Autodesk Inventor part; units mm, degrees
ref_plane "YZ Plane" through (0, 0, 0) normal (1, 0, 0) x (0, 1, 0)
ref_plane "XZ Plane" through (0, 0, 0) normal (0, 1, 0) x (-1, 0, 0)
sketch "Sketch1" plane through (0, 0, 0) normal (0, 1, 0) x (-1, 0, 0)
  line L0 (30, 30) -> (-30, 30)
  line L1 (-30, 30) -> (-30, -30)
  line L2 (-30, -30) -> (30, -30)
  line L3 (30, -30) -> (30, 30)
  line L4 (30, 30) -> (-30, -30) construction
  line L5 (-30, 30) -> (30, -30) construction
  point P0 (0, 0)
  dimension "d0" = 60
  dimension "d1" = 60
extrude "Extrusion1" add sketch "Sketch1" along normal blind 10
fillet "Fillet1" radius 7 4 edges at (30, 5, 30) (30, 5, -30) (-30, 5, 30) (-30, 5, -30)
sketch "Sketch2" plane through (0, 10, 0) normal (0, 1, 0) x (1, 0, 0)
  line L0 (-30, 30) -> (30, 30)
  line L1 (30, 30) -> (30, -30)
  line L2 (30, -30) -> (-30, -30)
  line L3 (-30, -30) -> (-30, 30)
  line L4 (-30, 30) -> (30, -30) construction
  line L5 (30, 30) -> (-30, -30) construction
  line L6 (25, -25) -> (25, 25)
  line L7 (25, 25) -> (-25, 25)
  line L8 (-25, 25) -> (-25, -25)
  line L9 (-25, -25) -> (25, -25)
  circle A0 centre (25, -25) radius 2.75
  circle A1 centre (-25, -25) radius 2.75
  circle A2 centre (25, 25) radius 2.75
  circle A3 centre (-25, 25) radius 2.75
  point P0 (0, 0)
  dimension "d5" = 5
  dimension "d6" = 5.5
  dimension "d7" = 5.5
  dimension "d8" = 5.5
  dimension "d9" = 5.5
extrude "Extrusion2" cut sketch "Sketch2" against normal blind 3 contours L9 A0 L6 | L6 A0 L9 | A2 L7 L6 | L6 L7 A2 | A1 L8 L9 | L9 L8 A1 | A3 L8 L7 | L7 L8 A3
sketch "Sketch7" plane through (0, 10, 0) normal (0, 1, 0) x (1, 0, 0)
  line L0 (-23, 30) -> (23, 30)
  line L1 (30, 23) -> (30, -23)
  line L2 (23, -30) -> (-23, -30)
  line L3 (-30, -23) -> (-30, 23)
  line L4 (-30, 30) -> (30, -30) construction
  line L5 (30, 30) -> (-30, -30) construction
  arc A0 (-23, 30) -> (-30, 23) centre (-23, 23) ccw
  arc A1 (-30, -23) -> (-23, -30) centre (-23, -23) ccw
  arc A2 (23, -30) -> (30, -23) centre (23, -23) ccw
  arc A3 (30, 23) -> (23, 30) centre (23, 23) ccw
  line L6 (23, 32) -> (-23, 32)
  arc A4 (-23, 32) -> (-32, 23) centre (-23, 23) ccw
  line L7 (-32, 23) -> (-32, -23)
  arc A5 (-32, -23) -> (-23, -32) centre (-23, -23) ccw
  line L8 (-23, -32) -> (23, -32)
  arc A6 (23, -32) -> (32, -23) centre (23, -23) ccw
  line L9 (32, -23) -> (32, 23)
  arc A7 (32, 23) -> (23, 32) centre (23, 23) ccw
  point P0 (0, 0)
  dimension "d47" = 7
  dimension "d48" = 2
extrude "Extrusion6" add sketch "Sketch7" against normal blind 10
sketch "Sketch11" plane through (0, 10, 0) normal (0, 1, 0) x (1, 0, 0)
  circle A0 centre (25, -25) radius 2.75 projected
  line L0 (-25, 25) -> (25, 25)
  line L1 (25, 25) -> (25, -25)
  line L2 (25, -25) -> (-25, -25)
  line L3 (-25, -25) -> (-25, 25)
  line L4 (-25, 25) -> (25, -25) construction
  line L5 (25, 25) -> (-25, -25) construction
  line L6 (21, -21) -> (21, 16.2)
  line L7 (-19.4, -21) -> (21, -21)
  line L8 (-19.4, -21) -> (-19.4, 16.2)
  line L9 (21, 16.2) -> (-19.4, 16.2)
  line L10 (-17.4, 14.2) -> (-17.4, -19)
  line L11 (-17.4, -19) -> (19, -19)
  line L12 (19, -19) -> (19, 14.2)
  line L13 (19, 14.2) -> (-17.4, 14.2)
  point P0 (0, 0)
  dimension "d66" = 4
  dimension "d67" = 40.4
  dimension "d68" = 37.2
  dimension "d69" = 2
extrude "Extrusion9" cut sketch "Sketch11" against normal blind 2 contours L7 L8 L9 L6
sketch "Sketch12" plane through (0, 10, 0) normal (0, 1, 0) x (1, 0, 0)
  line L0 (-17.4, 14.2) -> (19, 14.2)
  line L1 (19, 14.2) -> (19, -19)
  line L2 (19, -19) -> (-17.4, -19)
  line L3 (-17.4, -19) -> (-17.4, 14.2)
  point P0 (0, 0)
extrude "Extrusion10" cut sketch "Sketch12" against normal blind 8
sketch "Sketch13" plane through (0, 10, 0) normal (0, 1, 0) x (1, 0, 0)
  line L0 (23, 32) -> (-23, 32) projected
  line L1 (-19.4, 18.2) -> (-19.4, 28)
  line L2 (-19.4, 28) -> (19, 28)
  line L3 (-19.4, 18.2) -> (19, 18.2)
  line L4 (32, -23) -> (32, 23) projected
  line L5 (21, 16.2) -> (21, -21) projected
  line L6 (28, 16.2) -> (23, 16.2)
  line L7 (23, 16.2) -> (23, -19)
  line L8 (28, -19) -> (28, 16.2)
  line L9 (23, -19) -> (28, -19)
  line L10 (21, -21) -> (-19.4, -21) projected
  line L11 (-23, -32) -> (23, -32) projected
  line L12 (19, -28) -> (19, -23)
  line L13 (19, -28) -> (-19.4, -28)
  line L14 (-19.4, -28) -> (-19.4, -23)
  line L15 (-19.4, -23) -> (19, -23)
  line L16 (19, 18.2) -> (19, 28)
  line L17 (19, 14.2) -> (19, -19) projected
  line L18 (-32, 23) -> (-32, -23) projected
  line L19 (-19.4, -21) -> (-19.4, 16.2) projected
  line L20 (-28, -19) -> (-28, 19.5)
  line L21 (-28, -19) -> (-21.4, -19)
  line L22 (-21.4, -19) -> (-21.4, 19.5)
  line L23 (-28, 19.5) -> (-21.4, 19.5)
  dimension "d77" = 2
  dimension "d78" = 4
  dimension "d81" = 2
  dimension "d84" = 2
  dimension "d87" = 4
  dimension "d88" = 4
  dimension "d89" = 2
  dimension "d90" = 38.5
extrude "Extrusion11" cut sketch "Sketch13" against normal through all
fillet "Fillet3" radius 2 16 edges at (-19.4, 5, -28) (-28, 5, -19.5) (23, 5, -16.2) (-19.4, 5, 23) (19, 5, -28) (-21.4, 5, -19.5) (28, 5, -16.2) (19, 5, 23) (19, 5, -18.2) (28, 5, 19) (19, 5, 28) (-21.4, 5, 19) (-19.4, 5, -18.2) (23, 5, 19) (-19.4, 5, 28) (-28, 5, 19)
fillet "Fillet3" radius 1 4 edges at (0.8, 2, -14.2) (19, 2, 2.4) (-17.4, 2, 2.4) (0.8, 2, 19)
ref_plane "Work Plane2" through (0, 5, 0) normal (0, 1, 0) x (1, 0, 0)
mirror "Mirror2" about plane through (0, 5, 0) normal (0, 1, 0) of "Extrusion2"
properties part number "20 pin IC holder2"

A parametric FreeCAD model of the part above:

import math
import FreeCAD as App
import Part
import Sketcher
Q = App.Units.Quantity


def edges_at(feature, points):
    """Names of the edges that pass closest to the given points."""
    edges = feature.Shape.Edges
    near = lambda p: min(range(len(edges)), key=lambda i: edges[i].distToShape(Part.Vertex(*p))[0])
    return sorted({f"Edge{near(p) + 1}" for p in points})


def add_polygon(sketch, points):
    """Adds a closed chain of lines whose ends are joined by coincident constraints."""
    first, n = sketch.GeometryCount, len(points)
    for a, b in zip(points, points[1:] + points[:1]):
        sketch.addGeometry(Part.LineSegment(App.Vector(*a, 0), App.Vector(*b, 0)), False)
    for i in range(n):
        sketch.addConstraint(Sketcher.Constraint("Coincident", first + i, 2, first + (i + 1) % n, 1))

doc = App.newDocument("Part")
body = doc.addObject("PartDesign::Body", "Body")

# Sketch on XZ plane
sketch1 = doc.addObject("Sketcher::SketchObject", "Sketch")
body.addObject(sketch1)
sketch1.AttachmentSupport = (doc.XZ_Plane, [""])
sketch1.MapMode = "FlatFace"
add_polygon(sketch1, [(-30, -30), (-30, 30), (30, 30), (30, -30)])  # lines 0-3
sketch1.addConstraint(Sketcher.Constraint("Vertical", 0))
sketch1.addConstraint(Sketcher.Constraint("Horizontal", 1))
sketch1.addConstraint(Sketcher.Constraint("Vertical", 2))
sketch1.addConstraint(Sketcher.Constraint("Horizontal", 3))
sketch1.addConstraint(Sketcher.Constraint("Symmetric", 0, 2, 2, 2, -1, 1))
sketch1.addConstraint(Sketcher.Constraint("Equal", 3, 0))
sketch1.addConstraint(Sketcher.Constraint("DistanceX", 1, 1, 1, 2, Q("60 mm")))
pad1 = doc.addObject("PartDesign::Pad", "Pad")
body.addObject(pad1)
pad1.Profile = sketch1
pad1.Length = 10
pad1.Reversed = True
doc.recompute()

fillet = doc.addObject("PartDesign::Fillet", "Fillet")
body.addObject(fillet)
fillet.Base = (pad1, edges_at(pad1, [
    (30, 5, 30),
    (30, 5, -30),
    (-30, 5, 30),
    (-30, 5, -30),
]))
fillet.Radius = 7

# Sketch on XZ plane
sketch2 = doc.addObject("Sketcher::SketchObject", "Sketch001")
body.addObject(sketch2)
sketch2.AttachmentSupport = (doc.XZ_Plane, [""])
sketch2.MapMode = "FlatFace"
sketch2.AttachmentOffset = App.Placement(App.Vector(0, 0, -10), App.Rotation())
sketch2.addGeometry(Part.Circle(App.Vector(25, 25, 0), App.Vector(0, 0, 1), 2.8), False)
sketch2.addGeometry(Part.Circle(App.Vector(25, -25, 0), App.Vector(0, 0, 1), 2.8), False)
sketch2.addGeometry(Part.Circle(App.Vector(-25, 25, 0), App.Vector(0, 0, 1), 2.8), False)
sketch2.addGeometry(Part.Circle(App.Vector(-25, -25, 0), App.Vector(0, 0, 1), 2.8), False)
sketch2.addConstraint(Sketcher.Constraint("Equal", 0, 1))
sketch2.addConstraint(Sketcher.Constraint("Equal", 1, 2))
sketch2.addConstraint(Sketcher.Constraint("Equal", 2, 3))
sketch2.addConstraint(Sketcher.Constraint("Symmetric", 1, 3, 2, 3, -1, 1))
sketch2.addConstraint(Sketcher.Constraint("Symmetric", 0, 3, 3, 3, -1, 1))
sketch2.addConstraint(Sketcher.Constraint("Symmetric", 0, 3, 2, 3, -2))
sketch2.addConstraint(Sketcher.Constraint("Diameter", 0, Q("5.5 mm")))
sketch2.addConstraint(Sketcher.Constraint("DistanceX", -1, 1, 0, 3, Q("25 mm")))
sketch2.addConstraint(Sketcher.Constraint("DistanceY", -1, 1, 0, 3, Q("25 mm")))
pocket1 = doc.addObject("PartDesign::Pocket", "Pocket")
body.addObject(pocket1)
pocket1.Profile = sketch2
pocket1.Length = 3
pocket1.Reversed = True

# Sketch on XZ plane
sketch3 = doc.addObject("Sketcher::SketchObject", "Sketch002")
body.addObject(sketch3)
sketch3.AttachmentSupport = (doc.XZ_Plane, [""])
sketch3.MapMode = "FlatFace"
sketch3.AttachmentOffset = App.Placement(App.Vector(0, 0, -10), App.Rotation())
sketch3.addGeometry(Part.ArcOfCircle(Part.Circle(App.Vector(23, -23, 0), App.Vector(0, 0, 1), 9), math.radians(-90), math.radians(0)), False)
sketch3.addGeometry(Part.LineSegment(App.Vector(23, -32, 0), App.Vector(-23, -32, 0)), False)
sketch3.addGeometry(Part.ArcOfCircle(Part.Circle(App.Vector(-23, -23, 0), App.Vector(0, 0, 1), 9), math.radians(180), math.radians(270)), False)
sketch3.addGeometry(Part.LineSegment(App.Vector(-32, -23, 0), App.Vector(-32, 23, 0)), False)
sketch3.addGeometry(Part.ArcOfCircle(Part.Circle(App.Vector(-23, 23, 0), App.Vector(0, 0, 1), 9), math.radians(90), math.radians(180)), False)
sketch3.addGeometry(Part.LineSegment(App.Vector(-23, 32, 0), App.Vector(23, 32, 0)), False)
sketch3.addGeometry(Part.ArcOfCircle(Part.Circle(App.Vector(23, 23, 0), App.Vector(0, 0, 1), 9), math.radians(0), math.radians(90)), False)
sketch3.addGeometry(Part.LineSegment(App.Vector(32, 23, 0), App.Vector(32, -23, 0)), False)
sketch3.addGeometry(Part.ArcOfCircle(Part.Circle(App.Vector(-23, -23, 0), App.Vector(0, 0, 1), 7), math.radians(180), math.radians(270)), False)
sketch3.addGeometry(Part.LineSegment(App.Vector(-23, -30, 0), App.Vector(23, -30, 0)), False)
sketch3.addGeometry(Part.ArcOfCircle(Part.Circle(App.Vector(23, -23, 0), App.Vector(0, 0, 1), 7), math.radians(-90), math.radians(0)), False)
sketch3.addGeometry(Part.LineSegment(App.Vector(30, -23, 0), App.Vector(30, 23, 0)), False)
sketch3.addGeometry(Part.ArcOfCircle(Part.Circle(App.Vector(23, 23, 0), App.Vector(0, 0, 1), 7), math.radians(0), math.radians(90)), False)
sketch3.addGeometry(Part.LineSegment(App.Vector(23, 30, 0), App.Vector(-23, 30, 0)), False)
sketch3.addGeometry(Part.ArcOfCircle(Part.Circle(App.Vector(-23, 23, 0), App.Vector(0, 0, 1), 7), math.radians(90), math.radians(180)), False)
sketch3.addGeometry(Part.LineSegment(App.Vector(-30, 23, 0), App.Vector(-30, -23, 0)), False)
sketch3.addConstraint(Sketcher.Constraint("Tangent", 0, 1, 1, 1))
sketch3.addConstraint(Sketcher.Constraint("Tangent", 1, 2, 2, 2))
sketch3.addConstraint(Sketcher.Constraint("Tangent", 2, 1, 3, 1))
sketch3.addConstraint(Sketcher.Constraint("Tangent", 3, 2, 4, 2))
sketch3.addConstraint(Sketcher.Constraint("Tangent", 4, 1, 5, 1))
sketch3.addConstraint(Sketcher.Constraint("Tangent", 5, 2, 6, 2))
sketch3.addConstraint(Sketcher.Constraint("Tangent", 6, 1, 7, 1))
sketch3.addConstraint(Sketcher.Constraint("Tangent", 7, 2, 0, 2))
sketch3.addConstraint(Sketcher.Constraint("Tangent", 8, 2, 9, 1))
sketch3.addConstraint(Sketcher.Constraint("Tangent", 9, 2, 10, 1))
sketch3.addConstraint(Sketcher.Constraint("Tangent", 10, 2, 11, 1))
sketch3.addConstraint(Sketcher.Constraint("Tangent", 11, 2, 12, 1))
sketch3.addConstraint(Sketcher.Constraint("Tangent", 12, 2, 13, 1))
sketch3.addConstraint(Sketcher.Constraint("Tangent", 13, 2, 14, 1))
sketch3.addConstraint(Sketcher.Constraint("Tangent", 14, 2, 15, 1))
sketch3.addConstraint(Sketcher.Constraint("Tangent", 15, 2, 8, 1))
sketch3.addConstraint(Sketcher.Constraint("Horizontal", 1))
sketch3.addConstraint(Sketcher.Constraint("Vertical", 3))
sketch3.addConstraint(Sketcher.Constraint("Horizontal", 5))
sketch3.addConstraint(Sketcher.Constraint("Vertical", 7))
sketch3.addConstraint(Sketcher.Constraint("Horizontal", 9))
sketch3.addConstraint(Sketcher.Constraint("Vertical", 11))
sketch3.addConstraint(Sketcher.Constraint("Horizontal", 13))
sketch3.addConstraint(Sketcher.Constraint("Vertical", 15))
sketch3.addConstraint(Sketcher.Constraint("Coincident", 8, 3, 2, 3))
sketch3.addConstraint(Sketcher.Constraint("Coincident", 10, 3, 0, 3))
sketch3.addConstraint(Sketcher.Constraint("Coincident", 12, 3, 6, 3))
sketch3.addConstraint(Sketcher.Constraint("Equal", 0, 2))
sketch3.addConstraint(Sketcher.Constraint("Equal", 2, 4))
sketch3.addConstraint(Sketcher.Constraint("Equal", 4, 6))
sketch3.addConstraint(Sketcher.Constraint("Equal", 12, 14))
sketch3.addConstraint(Sketcher.Constraint("Symmetric", 0, 3, 4, 3, -1, 1))
sketch3.addConstraint(Sketcher.Constraint("Equal", 13, 3))
sketch3.addConstraint(Sketcher.Constraint("Radius", 8, Q("7 mm")))
sketch3.addConstraint(Sketcher.Constraint("Radius", 0, Q("9 mm")))
sketch3.addConstraint(Sketcher.Constraint("DistanceX", 1, 2, 1, 1, Q("46 mm")))
pad2 = doc.addObject("PartDesign::Pad", "Pad001")
body.addObject(pad2)
pad2.Profile = sketch3
pad2.Length = 10

# Sketch on XZ plane
sketch4 = doc.addObject("Sketcher::SketchObject", "Sketch003")
body.addObject(sketch4)
sketch4.AttachmentSupport = (doc.XZ_Plane, [""])
sketch4.MapMode = "FlatFace"
sketch4.AttachmentOffset = App.Placement(App.Vector(0, 0, -10), App.Rotation())
add_polygon(sketch4, [(-19, 21), (21, 21), (21, -16), (-19, -16)])  # lines 0-3
add_polygon(sketch4, [(-17, 19), (-17, -14), (19, -14), (19, 19)])  # lines 4-7
sketch4.addConstraint(Sketcher.Constraint("Horizontal", 0))
sketch4.addConstraint(Sketcher.Constraint("Vertical", 1))
sketch4.addConstraint(Sketcher.Constraint("Horizontal", 2))
sketch4.addConstraint(Sketcher.Constraint("Vertical", 3))
sketch4.addConstraint(Sketcher.Constraint("Vertical", 4))
sketch4.addConstraint(Sketcher.Constraint("Horizontal", 5))
sketch4.addConstraint(Sketcher.Constraint("Vertical", 6))
sketch4.addConstraint(Sketcher.Constraint("Horizontal", 7))
sketch4.addConstraint(Sketcher.Constraint("DistanceX", 0, 1, 0, 2, Q("40.4 mm")))
sketch4.addConstraint(Sketcher.Constraint("DistanceY", 1, 2, 1, 1, Q("37.2 mm")))
sketch4.addConstraint(Sketcher.Constraint("DistanceX", 2, 2, 4, 2, Q("2 mm")))
sketch4.addConstraint(Sketcher.Constraint("DistanceY", 2, 2, 4, 2, Q("2 mm")))
sketch4.addConstraint(Sketcher.Constraint("DistanceX", 5, 2, 1, 2, Q("2 mm")))
sketch4.addConstraint(Sketcher.Constraint("DistanceY", 6, 2, 0, 2, Q("2 mm")))
sketch4.addConstraint(Sketcher.Constraint("DistanceX", -1, 1, 0, 2, Q("21 mm")))
sketch4.addConstraint(Sketcher.Constraint("DistanceY", -1, 1, 0, 2, Q("21 mm")))
pocket2 = doc.addObject("PartDesign::Pocket", "Pocket001")
body.addObject(pocket2)
pocket2.Profile = sketch4
pocket2.Length = 2
pocket2.Reversed = True

# Sketch on XZ plane
sketch5 = doc.addObject("Sketcher::SketchObject", "Sketch004")
body.addObject(sketch5)
sketch5.AttachmentSupport = (doc.XZ_Plane, [""])
sketch5.MapMode = "FlatFace"
sketch5.AttachmentOffset = App.Placement(App.Vector(0, 0, -10), App.Rotation())
add_polygon(sketch5, [(19, -14), (-17, -14), (-17, 19), (19, 19)])  # lines 0-3
sketch5.addConstraint(Sketcher.Constraint("Horizontal", 0))
sketch5.addConstraint(Sketcher.Constraint("Vertical", 1))
sketch5.addConstraint(Sketcher.Constraint("Horizontal", 2))
sketch5.addConstraint(Sketcher.Constraint("Vertical", 3))
sketch5.addConstraint(Sketcher.Constraint("DistanceX", 0, 2, 0, 1, Q("36.4 mm")))
sketch5.addConstraint(Sketcher.Constraint("DistanceY", 1, 1, 1, 2, Q("33.2 mm")))
sketch5.addConstraint(Sketcher.Constraint("DistanceY", -1, 1, 1, 2, Q("19 mm")))
sketch5.addConstraint(Sketcher.Constraint("DistanceX", -1, 1, 2, 2, Q("19 mm")))
pocket3 = doc.addObject("PartDesign::Pocket", "Pocket002")
body.addObject(pocket3)
pocket3.Profile = sketch5
pocket3.Length = 8
pocket3.Reversed = True

# Sketch on XZ plane
sketch6 = doc.addObject("Sketcher::SketchObject", "Sketch005")
body.addObject(sketch6)
sketch6.AttachmentSupport = (doc.XZ_Plane, [""])
sketch6.MapMode = "FlatFace"
sketch6.AttachmentOffset = App.Placement(App.Vector(0, 0, -10), App.Rotation())
add_polygon(sketch6, [(-19, -28), (-19, -18), (19, -18), (19, -28)])  # lines 0-3
add_polygon(sketch6, [(28, 19), (28, -16), (23, -16), (23, 19)])  # lines 4-7
add_polygon(sketch6, [(-19, 28), (19, 28), (19, 23), (-19, 23)])  # lines 8-11
add_polygon(sketch6, [(-28, -20), (-28, 19), (-21, 19), (-21, -20)])  # lines 12-15
sketch6.addConstraint(Sketcher.Constraint("Vertical", 0))
sketch6.addConstraint(Sketcher.Constraint("Horizontal", 1))
sketch6.addConstraint(Sketcher.Constraint("Vertical", 2))
sketch6.addConstraint(Sketcher.Constraint("Horizontal", 3))
sketch6.addConstraint(Sketcher.Constraint("Vertical", 4))
sketch6.addConstraint(Sketcher.Constraint("Horizontal", 5))
sketch6.addConstraint(Sketcher.Constraint("Vertical", 6))
sketch6.addConstraint(Sketcher.Constraint("Horizontal", 7))
sketch6.addConstraint(Sketcher.Constraint("Horizontal", 8))
sketch6.addConstraint(Sketcher.Constraint("Vertical", 9))
sketch6.addConstraint(Sketcher.Constraint("Horizontal", 10))
sketch6.addConstraint(Sketcher.Constraint("Vertical", 11))
sketch6.addConstraint(Sketcher.Constraint("Vertical", 12))
sketch6.addConstraint(Sketcher.Constraint("Horizontal", 13))
sketch6.addConstraint(Sketcher.Constraint("Vertical", 14))
sketch6.addConstraint(Sketcher.Constraint("Horizontal", 15))
sketch6.addConstraint(Sketcher.Constraint("Symmetric", 7, 2, 12, 2, -2))
sketch6.addConstraint(Sketcher.Constraint("Symmetric", 2, 2, 8, 2, -1))
sketch6.addConstraint(Sketcher.Constraint("Vertical", 3, 2, 10, 2))
sketch6.addConstraint(Sketcher.Constraint("Equal", 7, 9))
sketch6.addConstraint(Sketcher.Constraint("DistanceY", 12, 1, 12, 2, Q("38.5 mm")))
sketch6.addConstraint(Sketcher.Constraint("DistanceY", 1, 2, 4, 2, Q("2 mm")))
sketch6.addConstraint(Sketcher.Constraint("DistanceX", 1, 2, 5, 2, Q("4 mm")))
sketch6.addConstraint(Sketcher.Constraint("DistanceY", 6, 2, 9, 2, Q("4 mm")))
sketch6.addConstraint(Sketcher.Constraint("DistanceX", 13, 2, 10, 2, Q("2 mm")))
sketch6.addConstraint(Sketcher.Constraint("DistanceX", 5, 2, 5, 1, Q("5 mm")))
sketch6.addConstraint(Sketcher.Constraint("DistanceX", 1, 1, 1, 2, Q("38.4 mm")))
sketch6.addConstraint(Sketcher.Constraint("DistanceX", 13, 1, 13, 2, Q("6.6 mm")))
sketch6.addConstraint(Sketcher.Constraint("DistanceY", 0, 1, 0, 2, Q("9.8 mm")))
sketch6.addConstraint(Sketcher.Constraint("DistanceY", 4, 2, 4, 1, Q("35.2 mm")))
pocket4 = doc.addObject("PartDesign::Pocket", "Pocket003")
body.addObject(pocket4)
pocket4.Profile = sketch6
pocket4.Type = "ThroughAll"
pocket4.Reversed = True
doc.recompute()

fillet2 = doc.addObject("PartDesign::Fillet", "Fillet001")
body.addObject(fillet2)
fillet2.Base = (pocket4, edges_at(pocket4, [
    (-19.4, 5, -28),
    (-28, 5, -19.5),
    (23, 5, -16.2),
    (-19.4, 5, 23),
    (19, 5, -28),
    (-21.4, 5, -19.5),
    (28, 5, -16.2),
    (19, 5, 23),
    (19, 5, -18.2),
    (28, 5, 19),
    (19, 5, 28),
    (-21.4, 5, 19),
    (-19.4, 5, -18.2),
    (23, 5, 19),
    (-19.4, 5, 28),
    (-28, 5, 19),
]))
fillet2.Radius = 2
doc.recompute()

fillet3 = doc.addObject("PartDesign::Fillet", "Fillet002")
body.addObject(fillet3)
fillet3.Base = (fillet2, edges_at(fillet2, [
    (0.8, 2, -14.2),
    (19, 2, 2.4),
    (-17.4, 2, 2.4),
    (0.8, 2, 19),
]))
fillet3.Radius = 1
doc.recompute()

datumplane = doc.addObject("PartDesign::Plane", "DatumPlane")
body.addObject(datumplane)
datumplane.AttachmentSupport = (doc.XZ_Plane, [""])
datumplane.MapMode = "FlatFace"
datumplane.AttachmentOffset = App.Placement(App.Vector(0, 0, -5), App.Rotation())
mirrored = doc.addObject("PartDesign::Mirrored", "Mirrored")
body.addObject(mirrored)
mirrored.Originals = [pocket1]
mirrored.MirrorPlane = (datumplane, [""])
body.Tip = mirrored

doc.recompute()
